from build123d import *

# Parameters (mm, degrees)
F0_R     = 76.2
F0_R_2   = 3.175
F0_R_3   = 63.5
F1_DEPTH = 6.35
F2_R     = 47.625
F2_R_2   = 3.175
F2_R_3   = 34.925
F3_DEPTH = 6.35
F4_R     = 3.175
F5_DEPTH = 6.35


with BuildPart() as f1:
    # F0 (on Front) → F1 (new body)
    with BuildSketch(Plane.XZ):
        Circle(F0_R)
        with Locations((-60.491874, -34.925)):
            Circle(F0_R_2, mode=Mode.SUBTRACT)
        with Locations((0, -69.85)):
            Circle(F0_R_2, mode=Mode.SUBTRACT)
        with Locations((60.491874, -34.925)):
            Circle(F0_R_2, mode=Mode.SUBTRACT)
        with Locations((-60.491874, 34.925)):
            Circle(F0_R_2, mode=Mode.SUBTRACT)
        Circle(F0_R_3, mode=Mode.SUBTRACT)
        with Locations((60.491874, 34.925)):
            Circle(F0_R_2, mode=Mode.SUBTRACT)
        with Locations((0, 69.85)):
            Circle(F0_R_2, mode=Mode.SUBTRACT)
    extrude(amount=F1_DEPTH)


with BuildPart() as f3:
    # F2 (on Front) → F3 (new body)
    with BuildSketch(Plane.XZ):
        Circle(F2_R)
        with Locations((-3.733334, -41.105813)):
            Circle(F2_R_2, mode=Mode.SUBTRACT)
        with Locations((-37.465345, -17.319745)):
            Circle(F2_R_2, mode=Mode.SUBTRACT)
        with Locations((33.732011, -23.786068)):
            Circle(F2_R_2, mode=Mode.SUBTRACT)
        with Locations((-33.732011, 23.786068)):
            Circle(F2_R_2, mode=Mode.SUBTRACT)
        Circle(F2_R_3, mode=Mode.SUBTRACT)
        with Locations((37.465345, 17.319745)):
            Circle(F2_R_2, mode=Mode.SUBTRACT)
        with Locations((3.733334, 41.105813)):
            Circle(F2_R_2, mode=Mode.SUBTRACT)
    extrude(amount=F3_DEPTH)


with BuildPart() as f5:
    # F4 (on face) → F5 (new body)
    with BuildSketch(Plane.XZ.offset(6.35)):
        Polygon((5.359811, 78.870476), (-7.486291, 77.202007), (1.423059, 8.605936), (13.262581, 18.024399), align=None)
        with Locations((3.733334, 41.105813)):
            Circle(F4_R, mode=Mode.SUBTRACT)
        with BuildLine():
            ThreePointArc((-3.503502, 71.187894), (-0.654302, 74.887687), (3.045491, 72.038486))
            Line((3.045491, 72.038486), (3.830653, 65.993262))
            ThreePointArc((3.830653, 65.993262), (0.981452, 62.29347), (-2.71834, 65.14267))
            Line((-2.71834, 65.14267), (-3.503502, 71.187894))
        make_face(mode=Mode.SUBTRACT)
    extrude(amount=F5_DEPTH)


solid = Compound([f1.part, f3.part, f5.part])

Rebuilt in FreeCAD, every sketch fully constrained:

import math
import FreeCAD as App
import Part
import Sketcher

V = App.Vector
Q = App.Units.Quantity

doc = App.newDocument("Part")
params = doc.addObject("Spreadsheet::Sheet", "Params")
for row, (alias, value) in enumerate([
    ("sketch1_diameter", "6 in"),
    ("sketch1_diameter2", "5 in"),
    ("sketch1_diameter3", "0.25 in"),
    ("pad1_length", "0.25 in"),
    ("sketch2_diameter", "3.75 in"),
    ("sketch2_diameter2", "0.25 in"),
    ("sketch2_diameter3", "2.75 in"),
    ("pad2_length", "0.25 in"),
    ("sketch3_diameter", "0.25 in"),
    ("sketch3_radius", "0.13 in"),
    ("sketch3_length", "0.51 in"),
    ("sketch3_length2", "0.24 in"),
    ("pad3_length", "0.25 in"),
], start=1):
    params.set(f"A{row}", alias)
    params.set(f"B{row}", "=" + value)
    params.setAlias(f"B{row}", alias)

body = doc.addObject("PartDesign::Body", "Body")

sketch1 = doc.addObject("Sketcher::SketchObject", "Sketch")
body.addObject(sketch1)
sketch1.AttachmentSupport = (doc.XZ_Plane, [""])
sketch1.MapMode = "FlatFace"
sketch1.addGeometry(Part.Circle(V(0, 0, 0), V(0, 0, 1), 76.2), False)
sketch1.addGeometry(Part.Circle(V(-60.5, -34.9, 0), V(0, 0, 1), 3.2), False)
sketch1.addGeometry(Part.Circle(V(0, -69.8, 0), V(0, 0, 1), 3.2), False)
sketch1.addGeometry(Part.Circle(V(60.5, -34.9, 0), V(0, 0, 1), 3.2), False)
sketch1.addGeometry(Part.Circle(V(-60.5, 34.9, 0), V(0, 0, 1), 3.2), False)
sketch1.addGeometry(Part.Circle(V(0, 0, 0), V(0, 0, 1), 63.5), False)
sketch1.addGeometry(Part.Circle(V(60.5, 34.9, 0), V(0, 0, 1), 3.2), False)
sketch1.addGeometry(Part.Circle(V(0, 69.8, 0), V(0, 0, 1), 3.2), False)
sketch1.addConstraint(Sketcher.Constraint("Coincident", 0, 3, -1, 1))
sketch1.addConstraint(Sketcher.Constraint("Coincident", 5, 3, -1, 1))
sketch1.addConstraint(Sketcher.Constraint("Equal", 1, 2))
sketch1.addConstraint(Sketcher.Constraint("Equal", 2, 3))
sketch1.addConstraint(Sketcher.Constraint("Equal", 3, 4))
sketch1.addConstraint(Sketcher.Constraint("Equal", 4, 6))
sketch1.addConstraint(Sketcher.Constraint("Equal", 6, 7))
sketch1.addConstraint(Sketcher.Constraint("Symmetric", 3, 3, 4, 3, -1, 1))
sketch1.addConstraint(Sketcher.Constraint("Symmetric", 1, 3, 6, 3, -1, 1))
sketch1.addConstraint(Sketcher.Constraint("Symmetric", 2, 3, 7, 3, -1, 1))
sketch1.addConstraint(Sketcher.Constraint("Symmetric", 1, 3, 3, 3, -2))
sketch1.addConstraint(Sketcher.Constraint("PointOnObject", 2, 3, -2))
sketch1.addConstraint(Sketcher.Constraint("Diameter", 0, Q("6 in")))
sketch1.addConstraint(Sketcher.Constraint("Diameter", 5, Q("5 in")))
sketch1.addConstraint(Sketcher.Constraint("Diameter", 1, Q("0.25 in")))
sketch1.addConstraint(Sketcher.Constraint("DistanceY", 2, 3, -1, 1, Q("2.75 in")))
sketch1.addConstraint(Sketcher.Constraint("DistanceY", 1, 3, 4, 3, Q("2.75 in")))
sketch1.addConstraint(Sketcher.Constraint("DistanceX", 1, 3, 3, 3, 120.983748))
sketch1.setExpression("Constraints[12]", "Params.sketch1_diameter")
sketch1.setExpression("Constraints[13]", "Params.sketch1_diameter2")
sketch1.setExpression("Constraints[14]", "Params.sketch1_diameter3")
pad1 = doc.addObject("PartDesign::Pad", "Pad")
body.addObject(pad1)
pad1.Profile = sketch1
pad1.setExpression("Length", "Params.pad1_length")
body2 = doc.addObject("PartDesign::Body", "Body001")

sketch2 = doc.addObject("Sketcher::SketchObject", "Sketch001")
body2.addObject(sketch2)
sketch2.AttachmentSupport = (doc.getObject("XZ_Plane001"), [""])
sketch2.MapMode = "FlatFace"
sketch2.addGeometry(Part.Circle(V(0, 0, 0), V(0, 0, 1), 47.6), False)
sketch2.addGeometry(Part.Circle(V(-3.7, -41.1, 0), V(0, 0, 1), 3.2), False)
sketch2.addGeometry(Part.Circle(V(-37.5, -17.3, 0), V(0, 0, 1), 3.2), False)
sketch2.addGeometry(Part.Circle(V(33.7, -23.8, 0), V(0, 0, 1), 3.2), False)
sketch2.addGeometry(Part.Circle(V(0, 0, 0), V(0, 0, 1), 34.9), False)
sketch2.addGeometry(Part.Circle(V(-33.7, 23.8, 0), V(0, 0, 1), 3.2), False)
sketch2.addGeometry(Part.Circle(V(37.5, 17.3, 0), V(0, 0, 1), 3.2), False)
sketch2.addGeometry(Part.Circle(V(3.7, 41.1, 0), V(0, 0, 1), 3.2), False)
sketch2.addConstraint(Sketcher.Constraint("Coincident", 0, 3, -1, 1))
sketch2.addConstraint(Sketcher.Constraint("Coincident", 4, 3, -1, 1))
sketch2.addConstraint(Sketcher.Constraint("Equal", 1, 2))
sketch2.addConstraint(Sketcher.Constraint("Equal", 2, 3))
sketch2.addConstraint(Sketcher.Constraint("Equal", 3, 5))
sketch2.addConstraint(Sketcher.Constraint("Equal", 5, 6))
sketch2.addConstraint(Sketcher.Constraint("Equal", 6, 7))
sketch2.addConstraint(Sketcher.Constraint("Symmetric", 3, 3, 5, 3, -1, 1))
sketch2.addConstraint(Sketcher.Constraint("Symmetric", 2, 3, 6, 3, -1, 1))
sketch2.addConstraint(Sketcher.Constraint("Symmetric", 1, 3, 7, 3, -1, 1))
sketch2.addConstraint(Sketcher.Constraint("Diameter", 0, Q("3.75 in")))
sketch2.addConstraint(Sketcher.Constraint("Diameter", 1, Q("0.25 in")))
sketch2.addConstraint(Sketcher.Constraint("Diameter", 4, Q("2.75 in")))
sketch2.addConstraint(Sketcher.Constraint("DistanceX", -1, 1, 3, 3, 33.732011))
sketch2.addConstraint(Sketcher.Constraint("DistanceY", 3, 3, -1, 1, 23.786068))
sketch2.addConstraint(Sketcher.Constraint("DistanceX", 2, 3, 1, 3, 33.732011))
sketch2.addConstraint(Sketcher.Constraint("DistanceY", 1, 3, 5, 3, 64.891881))
sketch2.addConstraint(Sketcher.Constraint("DistanceX", 1, 3, 6, 3, 41.198679))
sketch2.addConstraint(Sketcher.Constraint("DistanceY", 2, 3, -1, 1, 17.319745))
sketch2.setExpression("Constraints[10]", "Params.sketch2_diameter")
sketch2.setExpression("Constraints[11]", "Params.sketch2_diameter2")
sketch2.setExpression("Constraints[12]", "Params.sketch2_diameter3")
pad2 = doc.addObject("PartDesign::Pad", "Pad001")
body2.addObject(pad2)
pad2.Profile = sketch2
pad2.setExpression("Length", "Params.pad2_length")
body3 = doc.addObject("PartDesign::Body", "Body002")

sketch3 = doc.addObject("Sketcher::SketchObject", "Sketch002")
body3.addObject(sketch3)
sketch3.AttachmentSupport = (doc.getObject("XZ_Plane002"), [""])
sketch3.MapMode = "FlatFace"
sketch3.AttachmentOffset = App.Placement(V(0, 0, 0.25 * 25.4), App.Rotation())
sketch3.addGeometry(Part.LineSegment(V(5.4, 78.9, 0), V(-7.5, 77.2, 0)), False)
sketch3.addGeometry(Part.LineSegment(V(-7.5, 77.2, 0), V(1.4, 8.6, 0)), False)
sketch3.addGeometry(Part.LineSegment(V(1.4, 8.6, 0), V(13.3, 18, 0)), False)
sketch3.addGeometry(Part.LineSegment(V(13.3, 18, 0), V(5.4, 78.9, 0)), False)
sketch3.addGeometry(Part.Circle(V(3.7, 41.1, 0), V(0, 0, 1), 3.2), False)
sketch3.addGeometry(Part.LineSegment(V(-2.7, 65.1, 0), V(-3.5, 71.2, 0)), False)
sketch3.addGeometry(Part.ArcOfCircle(Part.Circle(V(-0.2, 71.6, 0), V(0, 0, 1), 3.3), math.radians(7), math.radians(187)), False)
sketch3.addGeometry(Part.LineSegment(V(3, 72, 0), V(3.8, 66, 0)), False)
sketch3.addGeometry(Part.ArcOfCircle(Part.Circle(V(0.6, 65.6, 0), V(0, 0, 1), 3.3), math.radians(-173), math.radians(7)), False)
sketch3.addConstraint(Sketcher.Constraint("Coincident", 0, 2, 1, 1))
sketch3.addConstraint(Sketcher.Constraint("Coincident", 1, 2, 2, 1))
sketch3.addConstraint(Sketcher.Constraint("Coincident", 2, 2, 3, 1))
sketch3.addConstraint(Sketcher.Constraint("Coincident", 3, 2, 0, 1))
sketch3.addConstraint(Sketcher.Constraint("Tangent", 5, 2, 6, 2))
sketch3.addConstraint(Sketcher.Constraint("Tangent", 6, 1, 7, 1))
sketch3.addConstraint(Sketcher.Constraint("Tangent", 7, 2, 8, 2))
sketch3.addConstraint(Sketcher.Constraint("Tangent", 8, 1, 5, 1))
sketch3.addConstraint(Sketcher.Constraint("Equal", 6, 8))
sketch3.addConstraint(Sketcher.Constraint("Perpendicular", 0, 1))
sketch3.addConstraint(Sketcher.Constraint("Parallel", 1, 3))
sketch3.addConstraint(Sketcher.Constraint("Parallel", 3, 5))
sketch3.addConstraint(Sketcher.Constraint("Diameter", 4, Q("0.25 in")))
sketch3.addConstraint(Sketcher.Constraint("Radius", 6, Q("0.13 in")))
sketch3.addConstraint(Sketcher.Constraint("Distance", 0, Q("0.51 in")))
sketch3.addConstraint(Sketcher.Constraint("Distance", 5, Q("0.24 in")))
sketch3.addConstraint(Sketcher.Constraint("DistanceY", -1, 1, 2, 2, 18.024399))
sketch3.addConstraint(Sketcher.Constraint("DistanceX", 0, 2, 3, 2, 12.846102))
sketch3.addConstraint(Sketcher.Constraint("Distance", 1, 69.172231))
sketch3.addConstraint(Sketcher.Constraint("Distance", 3, 61.357142))
sketch3.addConstraint(Sketcher.Constraint("DistanceY", -1, 1, 6, 3, 71.613191))
sketch3.addConstraint(Sketcher.Constraint("DistanceX", 0, 2, -1, 1, 7.486291))
sketch3.addConstraint(Sketcher.Constraint("DistanceX", -1, 1, 6, 1, 3.045491))
sketch3.addConstraint(Sketcher.Constraint("DistanceX", 6, 3, 4, 3, 3.96234))
sketch3.addConstraint(Sketcher.Constraint("DistanceY", 4, 3, 5, 2, 30.082081))
sketch3.setExpression("Constraints[12]", "Params.sketch3_diameter")
sketch3.setExpression("Constraints[13]", "Params.sketch3_radius")
sketch3.setExpression("Constraints[14]", "Params.sketch3_length")
sketch3.setExpression("Constraints[15]", "Params.sketch3_length2")
pad3 = doc.addObject("PartDesign::Pad", "Pad002")
body3.addObject(pad3)
pad3.Profile = sketch3
pad3.setExpression("Length", "Params.pad3_length")

doc.recompute()
